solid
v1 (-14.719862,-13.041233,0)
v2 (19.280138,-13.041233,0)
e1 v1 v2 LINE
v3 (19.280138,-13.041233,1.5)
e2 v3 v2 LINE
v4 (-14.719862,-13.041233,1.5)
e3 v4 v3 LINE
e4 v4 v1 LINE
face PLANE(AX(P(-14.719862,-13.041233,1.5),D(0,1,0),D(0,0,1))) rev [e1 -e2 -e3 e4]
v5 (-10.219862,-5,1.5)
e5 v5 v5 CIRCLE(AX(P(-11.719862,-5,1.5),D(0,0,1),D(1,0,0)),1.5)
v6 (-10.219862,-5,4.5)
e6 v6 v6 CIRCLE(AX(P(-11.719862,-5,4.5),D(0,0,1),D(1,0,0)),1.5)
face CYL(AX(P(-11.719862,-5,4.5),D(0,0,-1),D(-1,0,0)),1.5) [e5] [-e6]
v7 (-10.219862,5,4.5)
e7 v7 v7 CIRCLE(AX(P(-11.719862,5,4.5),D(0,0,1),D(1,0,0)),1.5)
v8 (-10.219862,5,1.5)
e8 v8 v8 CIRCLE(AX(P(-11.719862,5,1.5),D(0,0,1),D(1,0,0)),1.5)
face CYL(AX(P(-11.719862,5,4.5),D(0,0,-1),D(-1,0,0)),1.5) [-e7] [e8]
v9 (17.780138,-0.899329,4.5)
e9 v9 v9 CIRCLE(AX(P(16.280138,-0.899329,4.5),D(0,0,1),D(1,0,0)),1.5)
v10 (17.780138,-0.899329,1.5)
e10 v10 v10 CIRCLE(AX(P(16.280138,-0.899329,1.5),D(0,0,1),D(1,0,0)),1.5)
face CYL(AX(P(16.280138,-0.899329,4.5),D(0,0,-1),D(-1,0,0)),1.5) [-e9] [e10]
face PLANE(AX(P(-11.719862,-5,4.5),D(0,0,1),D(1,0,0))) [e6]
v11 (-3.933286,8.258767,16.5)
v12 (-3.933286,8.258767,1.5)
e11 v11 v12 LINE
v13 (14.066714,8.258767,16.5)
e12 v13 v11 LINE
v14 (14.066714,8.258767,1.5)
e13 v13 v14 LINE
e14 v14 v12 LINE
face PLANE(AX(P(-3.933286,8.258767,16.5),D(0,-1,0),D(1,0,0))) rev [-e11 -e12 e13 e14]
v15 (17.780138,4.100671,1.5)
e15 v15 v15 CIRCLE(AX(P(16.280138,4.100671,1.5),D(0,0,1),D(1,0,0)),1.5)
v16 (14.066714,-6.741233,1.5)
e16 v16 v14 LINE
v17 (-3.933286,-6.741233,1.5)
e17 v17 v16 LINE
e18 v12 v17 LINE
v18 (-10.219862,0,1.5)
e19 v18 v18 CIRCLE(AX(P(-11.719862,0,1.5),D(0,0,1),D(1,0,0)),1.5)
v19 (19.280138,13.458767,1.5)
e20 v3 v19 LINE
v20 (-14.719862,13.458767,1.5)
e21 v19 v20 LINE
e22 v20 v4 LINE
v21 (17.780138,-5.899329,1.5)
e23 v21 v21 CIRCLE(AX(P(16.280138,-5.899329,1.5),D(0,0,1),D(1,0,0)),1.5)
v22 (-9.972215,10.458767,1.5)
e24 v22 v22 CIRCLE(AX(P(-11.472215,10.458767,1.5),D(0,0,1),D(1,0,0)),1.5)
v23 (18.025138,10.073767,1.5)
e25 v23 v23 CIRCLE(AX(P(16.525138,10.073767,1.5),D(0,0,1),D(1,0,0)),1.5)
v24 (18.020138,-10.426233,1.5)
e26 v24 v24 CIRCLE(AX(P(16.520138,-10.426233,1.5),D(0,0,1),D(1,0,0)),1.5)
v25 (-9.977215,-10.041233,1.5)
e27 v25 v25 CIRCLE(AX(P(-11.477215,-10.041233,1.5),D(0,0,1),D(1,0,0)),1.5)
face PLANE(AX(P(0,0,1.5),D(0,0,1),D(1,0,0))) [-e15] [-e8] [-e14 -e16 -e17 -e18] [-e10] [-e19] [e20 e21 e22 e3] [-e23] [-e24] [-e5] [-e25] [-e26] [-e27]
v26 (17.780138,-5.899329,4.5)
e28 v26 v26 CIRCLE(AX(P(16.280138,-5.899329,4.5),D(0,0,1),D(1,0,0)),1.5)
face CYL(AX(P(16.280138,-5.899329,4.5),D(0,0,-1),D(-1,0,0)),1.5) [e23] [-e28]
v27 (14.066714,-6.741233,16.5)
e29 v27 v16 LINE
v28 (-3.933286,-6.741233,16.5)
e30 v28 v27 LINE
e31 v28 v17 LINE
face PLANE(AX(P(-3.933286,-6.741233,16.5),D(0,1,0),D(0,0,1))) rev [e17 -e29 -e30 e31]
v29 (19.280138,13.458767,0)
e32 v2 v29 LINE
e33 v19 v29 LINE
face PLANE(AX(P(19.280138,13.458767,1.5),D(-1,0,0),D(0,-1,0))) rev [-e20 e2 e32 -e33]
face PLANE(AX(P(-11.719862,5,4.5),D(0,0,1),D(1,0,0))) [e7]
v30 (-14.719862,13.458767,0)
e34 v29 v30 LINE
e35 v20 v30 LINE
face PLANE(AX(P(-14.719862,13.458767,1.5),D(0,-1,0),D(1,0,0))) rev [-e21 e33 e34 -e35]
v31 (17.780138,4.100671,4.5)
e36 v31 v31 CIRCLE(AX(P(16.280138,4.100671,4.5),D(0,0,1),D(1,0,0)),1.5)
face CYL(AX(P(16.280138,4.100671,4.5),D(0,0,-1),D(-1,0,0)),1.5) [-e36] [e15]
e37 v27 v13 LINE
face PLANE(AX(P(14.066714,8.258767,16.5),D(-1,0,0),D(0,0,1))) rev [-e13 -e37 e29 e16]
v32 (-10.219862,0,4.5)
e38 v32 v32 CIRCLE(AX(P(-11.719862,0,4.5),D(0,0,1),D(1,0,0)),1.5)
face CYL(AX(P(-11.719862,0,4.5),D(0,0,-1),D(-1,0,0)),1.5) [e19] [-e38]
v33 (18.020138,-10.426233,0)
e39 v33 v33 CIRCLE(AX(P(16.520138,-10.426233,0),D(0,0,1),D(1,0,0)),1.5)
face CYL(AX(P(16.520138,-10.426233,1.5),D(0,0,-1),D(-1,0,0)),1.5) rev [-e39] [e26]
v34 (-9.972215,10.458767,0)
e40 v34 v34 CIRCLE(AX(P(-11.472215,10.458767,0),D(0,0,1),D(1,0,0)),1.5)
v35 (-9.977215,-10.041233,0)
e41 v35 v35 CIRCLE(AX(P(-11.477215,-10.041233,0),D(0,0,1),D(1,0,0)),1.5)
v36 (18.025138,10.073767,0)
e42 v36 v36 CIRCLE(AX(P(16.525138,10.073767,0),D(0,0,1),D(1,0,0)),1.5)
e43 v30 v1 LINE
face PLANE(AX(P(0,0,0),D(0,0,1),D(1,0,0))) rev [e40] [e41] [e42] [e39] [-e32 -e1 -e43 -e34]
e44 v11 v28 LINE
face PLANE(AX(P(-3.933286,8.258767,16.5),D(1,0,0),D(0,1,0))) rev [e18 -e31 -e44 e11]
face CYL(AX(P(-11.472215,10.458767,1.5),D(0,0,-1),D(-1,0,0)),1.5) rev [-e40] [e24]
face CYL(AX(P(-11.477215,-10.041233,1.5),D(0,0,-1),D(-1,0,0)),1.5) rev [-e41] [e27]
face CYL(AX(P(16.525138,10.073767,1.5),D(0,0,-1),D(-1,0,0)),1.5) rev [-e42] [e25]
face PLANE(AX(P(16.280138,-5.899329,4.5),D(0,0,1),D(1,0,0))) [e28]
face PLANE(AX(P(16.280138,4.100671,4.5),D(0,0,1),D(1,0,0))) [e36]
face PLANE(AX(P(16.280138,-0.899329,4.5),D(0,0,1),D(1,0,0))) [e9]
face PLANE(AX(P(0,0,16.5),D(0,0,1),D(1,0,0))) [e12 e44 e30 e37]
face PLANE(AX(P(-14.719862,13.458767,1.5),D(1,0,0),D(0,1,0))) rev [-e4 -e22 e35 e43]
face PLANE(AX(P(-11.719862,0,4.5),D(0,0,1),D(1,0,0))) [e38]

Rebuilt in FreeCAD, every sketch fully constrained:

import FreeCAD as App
import Part
import Sketcher


def add_polygon(sketch, points):
    """Adds a closed chain of lines whose ends are joined by coincident constraints."""
    first, n = sketch.GeometryCount, len(points)
    for a, b in zip(points, points[1:] + points[:1]):
        sketch.addGeometry(Part.LineSegment(App.Vector(*a, 0), App.Vector(*b, 0)), False)
    for i in range(n):
        sketch.addConstraint(Sketcher.Constraint("Coincident", first + i, 2, first + (i + 1) % n, 1))

doc = App.newDocument("Part")
params = doc.addObject("Spreadsheet::Sheet", "Params")
for row, (alias, value) in enumerate([
    ("sketch1_diameter", "3 mm"),
    ("sketch1_width", "34 mm"),
    ("sketch1_height", "26.5 mm"),
    ("pad1_length", "1.5 mm"),
    ("sketch2_width", "18 mm"),
    ("sketch2_height", "15 mm"),
    ("pad2_length", "15 mm"),
    ("sketch3_diameter", "3 mm"),
    ("pad3_length", "3 mm"),
], start=1):
    params.set(f"A{row}", alias)
    params.set(f"B{row}", "=" + value)
    params.setAlias(f"B{row}", alias)

body = doc.addObject("PartDesign::Body", "Body")

sketch1 = doc.addObject("Sketcher::SketchObject", "Sketch")
body.addObject(sketch1)
sketch1.AttachmentSupport = (doc.XY_Plane, [""])
sketch1.MapMode = "FlatFace"
add_polygon(sketch1, [(-14.7, 13.5), (-14.7, -13), (19.3, -13), (19.3, 13.5)])
sketch1.addGeometry(Part.Circle(App.Vector(-11.5, -10, 0), App.Vector(0, 0, 1), 1.5), False)
sketch1.addGeometry(Part.Circle(App.Vector(16.5, -10.4, 0), App.Vector(0, 0, 1), 1.5), False)
sketch1.addGeometry(Part.Circle(App.Vector(-11.5, 10.5, 0), App.Vector(0, 0, 1), 1.5), False)
sketch1.addGeometry(Part.Circle(App.Vector(16.5, 10.1, 0), App.Vector(0, 0, 1), 1.5), False)
sketch1.addConstraint([
    Sketcher.Constraint("Vertical", 0),
    Sketcher.Constraint("Horizontal", 1),
    Sketcher.Constraint("Vertical", 2),
    Sketcher.Constraint("Horizontal", 3),
    Sketcher.Constraint("Equal", 4, 5),
    Sketcher.Constraint("Equal", 5, 6),
    Sketcher.Constraint("Equal", 6, 7),
    Sketcher.Constraint("Diameter", 4, 3.0),
    Sketcher.Constraint("DistanceX", 1, 1, 1, 2, 34.0),
    Sketcher.Constraint("DistanceY", 0, 2, 0, 1, 26.5),
    Sketcher.Constraint("DistanceY", 0, 2, 4, 3, 3.0),
    Sketcher.Constraint("DistanceY", 6, 3, 2, 2, 3.000001),
    Sketcher.Constraint("DistanceY", 5, 3, 7, 3, 20.499999),
    Sketcher.Constraint("DistanceX", 0, 2, 5, 3, 31.24),
    Sketcher.Constraint("DistanceY", 5, 3, 4, 3, 0.385),
    Sketcher.Constraint("DistanceX", 4, 3, 6, 3, 0.005),
    Sketcher.Constraint("DistanceX", 5, 3, 7, 3, 0.005),
    Sketcher.Constraint("DistanceX", 4, 3, -1, 1, 11.477215),
    Sketcher.Constraint("DistanceY", 4, 3, -1, 1, 10.041233),
    Sketcher.Constraint("DistanceX", -1, 1, 5, 3, 16.520138),
])
sketch1.setExpression("Constraints[11]", "Params.sketch1_diameter")
sketch1.setExpression("Constraints[12]", "Params.sketch1_width")
sketch1.setExpression("Constraints[13]", "Params.sketch1_height")
pad1 = doc.addObject("PartDesign::Pad", "Pad")
body.addObject(pad1)
pad1.Profile = sketch1
pad1.setExpression("Length", "Params.pad1_length")

sketch2 = doc.addObject("Sketcher::SketchObject", "Sketch001")
body.addObject(sketch2)
sketch2.AttachmentSupport = (doc.XY_Plane, [""])
sketch2.MapMode = "FlatFace"
sketch2.AttachmentOffset = App.Placement(App.Vector(0, 0, 1.5), App.Rotation())
add_polygon(sketch2, [(-4, 8), (-4, -7), (14, -7), (14, 8)])
sketch2.addConstraint([
    Sketcher.Constraint("Vertical", 0),
    Sketcher.Constraint("Horizontal", 1),
    Sketcher.Constraint("Vertical", 2),
    Sketcher.Constraint("Horizontal", 3),
    Sketcher.Constraint("DistanceX", 1, 1, 1, 2, 18.0),
    Sketcher.Constraint("DistanceY", 0, 2, 0, 1, 15.0),
    Sketcher.Constraint("DistanceX", 0, 2, -1, 1, 3.933286),
    Sketcher.Constraint("DistanceY", 0, 2, -1, 1, 6.741233),
])
sketch2.setExpression("Constraints[8]", "Params.sketch2_width")
sketch2.setExpression("Constraints[9]", "Params.sketch2_height")
pad2 = doc.addObject("PartDesign::Pad", "Pad001")
body.addObject(pad2)
pad2.Profile = sketch2
pad2.setExpression("Length", "Params.pad2_length")

sketch3 = doc.addObject("Sketcher::SketchObject", "Sketch002")
body.addObject(sketch3)
sketch3.AttachmentSupport = (doc.XY_Plane, [""])
sketch3.MapMode = "FlatFace"
sketch3.AttachmentOffset = App.Placement(App.Vector(0, 0, 1.5), App.Rotation())
sketch3.addGeometry([
    Part.Circle(App.Vector(-11.7, 5, 0), App.Vector(0, 0, 1), 1.5),
    Part.Circle(App.Vector(-11.7, 0, 0), App.Vector(0, 0, 1), 1.5),
    Part.Circle(App.Vector(-11.7, -5, 0), App.Vector(0, 0, 1), 1.5),
    Part.Circle(App.Vector(16.3, 4.1, 0), App.Vector(0, 0, 1), 1.5),
    Part.Circle(App.Vector(16.3, -0.9, 0), App.Vector(0, 0, 1), 1.5),
    Part.Circle(App.Vector(16.3, -5.9, 0), App.Vector(0, 0, 1), 1.5),
], False)
sketch3.addConstraint([
    Sketcher.Constraint("Equal", 0, 1),
    Sketcher.Constraint("Equal", 1, 2),
    Sketcher.Constraint("Equal", 2, 3),
    Sketcher.Constraint("Equal", 3, 4),
    Sketcher.Constraint("Equal", 4, 5),
    Sketcher.Constraint("Symmetric", 0, 3, 2, 3, -1),
    Sketcher.Constraint("PointOnObject", 1, 3, -1),
    Sketcher.Constraint("Vertical", 0, 3, 1, 3),
    Sketcher.Constraint("Vertical", 3, 3, 4, 3),
    Sketcher.Constraint("Vertical", 4, 3, 5, 3),
    Sketcher.Constraint("Diameter", 0, 3.0),
    Sketcher.Constraint("DistanceY", -1, 1, 0, 3, 5.0),
    Sketcher.Constraint("DistanceX", 0, 3, 3, 3, 28.0),
    Sketcher.Constraint("DistanceY", 4, 3, 3, 3, 5.0),
    Sketcher.Constraint("DistanceY", 5, 3, 4, 3, 5.0),
    Sketcher.Constraint("DistanceY", -1, 1, 3, 3, 4.100671),
    Sketcher.Constraint("DistanceX", 0, 3, -1, 1, 11.719862),
])
sketch3.setExpression("Constraints[10]", "Params.sketch3_diameter")
pad3 = doc.addObject("PartDesign::Pad", "Pad002")
body.addObject(pad3)
pad3.Profile = sketch3
pad3.setExpression("Length", "Params.pad3_length")

doc.recompute()
